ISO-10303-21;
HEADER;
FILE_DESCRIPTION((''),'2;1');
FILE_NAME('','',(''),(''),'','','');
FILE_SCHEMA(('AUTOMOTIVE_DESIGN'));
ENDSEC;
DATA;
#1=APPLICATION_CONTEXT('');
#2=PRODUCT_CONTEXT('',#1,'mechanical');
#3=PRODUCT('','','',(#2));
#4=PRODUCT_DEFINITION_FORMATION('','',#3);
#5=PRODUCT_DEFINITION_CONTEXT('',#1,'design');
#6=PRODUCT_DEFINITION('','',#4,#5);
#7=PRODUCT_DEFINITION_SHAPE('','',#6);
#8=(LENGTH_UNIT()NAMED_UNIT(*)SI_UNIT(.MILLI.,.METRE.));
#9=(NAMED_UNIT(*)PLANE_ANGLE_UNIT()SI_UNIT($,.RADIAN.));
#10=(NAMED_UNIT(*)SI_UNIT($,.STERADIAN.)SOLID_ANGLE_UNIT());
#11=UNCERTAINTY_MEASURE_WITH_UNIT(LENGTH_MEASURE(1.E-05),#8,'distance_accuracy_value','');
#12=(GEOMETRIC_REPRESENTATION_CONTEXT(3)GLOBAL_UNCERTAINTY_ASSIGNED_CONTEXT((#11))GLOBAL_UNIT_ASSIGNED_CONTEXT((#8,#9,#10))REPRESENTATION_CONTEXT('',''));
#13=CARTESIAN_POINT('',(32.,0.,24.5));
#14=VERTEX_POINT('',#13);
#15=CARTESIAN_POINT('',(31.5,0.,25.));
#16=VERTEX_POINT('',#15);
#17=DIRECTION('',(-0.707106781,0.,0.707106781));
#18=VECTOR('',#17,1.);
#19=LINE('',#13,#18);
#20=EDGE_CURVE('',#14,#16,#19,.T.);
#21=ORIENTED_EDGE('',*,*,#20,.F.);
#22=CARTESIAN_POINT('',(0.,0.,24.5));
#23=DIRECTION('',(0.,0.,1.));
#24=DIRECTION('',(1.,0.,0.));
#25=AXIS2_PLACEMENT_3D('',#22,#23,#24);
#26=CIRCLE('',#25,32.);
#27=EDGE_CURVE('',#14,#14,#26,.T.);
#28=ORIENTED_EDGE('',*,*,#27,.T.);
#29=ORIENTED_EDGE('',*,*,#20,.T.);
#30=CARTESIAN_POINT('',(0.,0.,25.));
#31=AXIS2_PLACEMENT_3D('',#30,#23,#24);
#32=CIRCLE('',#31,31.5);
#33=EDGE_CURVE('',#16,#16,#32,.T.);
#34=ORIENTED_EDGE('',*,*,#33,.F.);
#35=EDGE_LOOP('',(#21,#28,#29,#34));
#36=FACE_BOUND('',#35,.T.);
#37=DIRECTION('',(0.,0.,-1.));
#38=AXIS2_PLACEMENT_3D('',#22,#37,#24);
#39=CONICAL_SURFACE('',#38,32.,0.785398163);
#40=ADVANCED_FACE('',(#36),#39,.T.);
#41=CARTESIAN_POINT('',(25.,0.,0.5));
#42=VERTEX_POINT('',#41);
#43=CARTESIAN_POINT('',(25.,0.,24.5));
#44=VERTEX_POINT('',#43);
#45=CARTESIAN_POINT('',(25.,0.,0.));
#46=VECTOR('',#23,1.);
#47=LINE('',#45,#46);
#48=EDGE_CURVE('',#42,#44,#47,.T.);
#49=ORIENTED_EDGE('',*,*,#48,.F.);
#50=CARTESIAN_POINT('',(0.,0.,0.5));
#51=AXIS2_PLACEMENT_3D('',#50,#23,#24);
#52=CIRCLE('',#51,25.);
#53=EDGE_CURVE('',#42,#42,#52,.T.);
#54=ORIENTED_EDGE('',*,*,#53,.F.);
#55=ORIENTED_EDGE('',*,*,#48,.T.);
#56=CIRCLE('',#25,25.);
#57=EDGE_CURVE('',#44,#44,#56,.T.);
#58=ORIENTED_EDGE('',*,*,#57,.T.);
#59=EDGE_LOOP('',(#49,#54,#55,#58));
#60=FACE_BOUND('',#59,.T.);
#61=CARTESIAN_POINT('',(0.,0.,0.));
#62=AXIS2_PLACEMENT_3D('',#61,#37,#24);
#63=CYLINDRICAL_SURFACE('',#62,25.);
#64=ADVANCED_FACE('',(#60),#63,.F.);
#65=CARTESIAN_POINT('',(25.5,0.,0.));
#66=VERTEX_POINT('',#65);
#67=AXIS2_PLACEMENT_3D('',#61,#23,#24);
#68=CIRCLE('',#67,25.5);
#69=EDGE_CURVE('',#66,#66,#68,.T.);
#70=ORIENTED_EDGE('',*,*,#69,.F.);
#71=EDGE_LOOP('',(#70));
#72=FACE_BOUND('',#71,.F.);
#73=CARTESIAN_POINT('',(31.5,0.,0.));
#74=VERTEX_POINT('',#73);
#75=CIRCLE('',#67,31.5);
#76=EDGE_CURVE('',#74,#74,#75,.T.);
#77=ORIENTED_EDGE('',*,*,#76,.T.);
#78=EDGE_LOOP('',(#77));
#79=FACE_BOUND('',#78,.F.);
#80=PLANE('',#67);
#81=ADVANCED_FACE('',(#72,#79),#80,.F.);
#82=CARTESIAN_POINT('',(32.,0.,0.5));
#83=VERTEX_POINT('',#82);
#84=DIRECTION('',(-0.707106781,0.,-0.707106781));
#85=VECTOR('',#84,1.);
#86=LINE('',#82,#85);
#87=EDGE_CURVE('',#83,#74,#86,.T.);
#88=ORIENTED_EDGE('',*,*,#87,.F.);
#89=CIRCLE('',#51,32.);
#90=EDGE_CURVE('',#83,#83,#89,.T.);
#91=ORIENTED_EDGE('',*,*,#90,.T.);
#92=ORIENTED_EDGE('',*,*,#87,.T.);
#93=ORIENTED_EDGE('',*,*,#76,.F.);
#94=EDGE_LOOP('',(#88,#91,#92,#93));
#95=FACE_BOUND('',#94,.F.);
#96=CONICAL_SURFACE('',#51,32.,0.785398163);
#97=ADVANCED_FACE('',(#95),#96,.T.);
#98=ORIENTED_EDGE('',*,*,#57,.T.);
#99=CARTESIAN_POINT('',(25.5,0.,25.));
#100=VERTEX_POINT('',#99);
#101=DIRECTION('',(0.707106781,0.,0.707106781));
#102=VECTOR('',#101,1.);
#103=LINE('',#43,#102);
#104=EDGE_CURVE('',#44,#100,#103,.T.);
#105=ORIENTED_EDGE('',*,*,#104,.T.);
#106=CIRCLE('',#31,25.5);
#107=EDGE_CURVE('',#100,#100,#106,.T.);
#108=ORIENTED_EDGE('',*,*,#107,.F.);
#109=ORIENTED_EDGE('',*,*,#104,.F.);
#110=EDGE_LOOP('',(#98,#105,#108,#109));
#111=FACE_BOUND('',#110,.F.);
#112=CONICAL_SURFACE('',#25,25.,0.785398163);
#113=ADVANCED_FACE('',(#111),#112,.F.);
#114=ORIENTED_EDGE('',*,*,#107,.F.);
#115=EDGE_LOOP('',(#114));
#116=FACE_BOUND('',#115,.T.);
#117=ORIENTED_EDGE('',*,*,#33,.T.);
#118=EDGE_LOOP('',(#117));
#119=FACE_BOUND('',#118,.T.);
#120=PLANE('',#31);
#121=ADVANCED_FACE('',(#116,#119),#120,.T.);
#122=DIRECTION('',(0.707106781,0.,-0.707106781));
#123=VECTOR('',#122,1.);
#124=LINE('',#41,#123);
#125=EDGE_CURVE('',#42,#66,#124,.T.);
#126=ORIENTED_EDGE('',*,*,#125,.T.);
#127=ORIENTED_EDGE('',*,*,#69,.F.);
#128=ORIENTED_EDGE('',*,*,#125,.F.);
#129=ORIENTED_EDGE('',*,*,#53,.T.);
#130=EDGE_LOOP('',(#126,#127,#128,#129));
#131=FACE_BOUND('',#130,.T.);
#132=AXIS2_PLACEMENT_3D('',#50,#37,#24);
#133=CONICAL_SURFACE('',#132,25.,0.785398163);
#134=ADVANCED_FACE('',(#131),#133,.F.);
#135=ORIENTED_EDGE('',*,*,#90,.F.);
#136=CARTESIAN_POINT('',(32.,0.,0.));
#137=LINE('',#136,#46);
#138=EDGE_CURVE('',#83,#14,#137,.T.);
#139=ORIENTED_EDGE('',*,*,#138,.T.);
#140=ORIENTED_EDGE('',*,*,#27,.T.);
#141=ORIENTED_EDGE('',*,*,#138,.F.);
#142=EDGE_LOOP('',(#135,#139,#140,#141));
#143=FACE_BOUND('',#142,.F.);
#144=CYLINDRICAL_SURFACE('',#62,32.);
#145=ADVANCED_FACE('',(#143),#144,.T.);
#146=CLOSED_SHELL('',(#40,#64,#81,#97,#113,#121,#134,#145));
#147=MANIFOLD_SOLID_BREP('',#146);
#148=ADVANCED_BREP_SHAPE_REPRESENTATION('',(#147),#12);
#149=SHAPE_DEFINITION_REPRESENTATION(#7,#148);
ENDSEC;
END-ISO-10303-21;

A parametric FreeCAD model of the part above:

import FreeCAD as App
import Part
import Sketcher

V = App.Vector
Q = App.Units.Quantity


def edges_at(feature, points):
    """Names of the edges that pass closest to the given points."""
    edges = feature.Shape.Edges
    near = lambda p: min(range(len(edges)), key=lambda i: edges[i].distToShape(Part.Vertex(*p))[0])
    return sorted({f"Edge{near(p) + 1}" for p in points})

doc = App.newDocument("Part")
body = doc.addObject("PartDesign::Body", "Body")

sketch1 = body.newObject("Sketcher::SketchObject", "Sketch")
sketch1.AttachmentSupport = (doc.getObject("XY_Plane"), [""])
sketch1.MapMode = "FlatFace"
sketch1.addGeometry(Part.Circle(V(0, 0, 0), V(0, 0, 1), 32), False)
sketch1.addGeometry(Part.Circle(V(0, 0, 0), V(0, 0, 1), 25), False)
sketch1.addConstraint(Sketcher.Constraint("Coincident", 0, 3, -1, 1))
sketch1.addConstraint(Sketcher.Constraint("Coincident", 1, 3, -1, 1))
sketch1.addConstraint(Sketcher.Constraint("Diameter", 0, Q("64 mm")))
sketch1.addConstraint(Sketcher.Constraint("Diameter", 1, Q("50 mm")))
pad1 = body.newObject("PartDesign::Pad", "Pad")
pad1.Profile = sketch1
pad1.Length = 25
doc.recompute()

chamfer = body.newObject("PartDesign::Chamfer", "Chamfer")
chamfer.Base = (pad1, edges_at(pad1, [
    (-25, 0, 25),
    (-32, 0, 25),
    (-32, 0, 0),
    (-25, 0, 0),
]))
chamfer.Size = 0.5

doc.recompute()
